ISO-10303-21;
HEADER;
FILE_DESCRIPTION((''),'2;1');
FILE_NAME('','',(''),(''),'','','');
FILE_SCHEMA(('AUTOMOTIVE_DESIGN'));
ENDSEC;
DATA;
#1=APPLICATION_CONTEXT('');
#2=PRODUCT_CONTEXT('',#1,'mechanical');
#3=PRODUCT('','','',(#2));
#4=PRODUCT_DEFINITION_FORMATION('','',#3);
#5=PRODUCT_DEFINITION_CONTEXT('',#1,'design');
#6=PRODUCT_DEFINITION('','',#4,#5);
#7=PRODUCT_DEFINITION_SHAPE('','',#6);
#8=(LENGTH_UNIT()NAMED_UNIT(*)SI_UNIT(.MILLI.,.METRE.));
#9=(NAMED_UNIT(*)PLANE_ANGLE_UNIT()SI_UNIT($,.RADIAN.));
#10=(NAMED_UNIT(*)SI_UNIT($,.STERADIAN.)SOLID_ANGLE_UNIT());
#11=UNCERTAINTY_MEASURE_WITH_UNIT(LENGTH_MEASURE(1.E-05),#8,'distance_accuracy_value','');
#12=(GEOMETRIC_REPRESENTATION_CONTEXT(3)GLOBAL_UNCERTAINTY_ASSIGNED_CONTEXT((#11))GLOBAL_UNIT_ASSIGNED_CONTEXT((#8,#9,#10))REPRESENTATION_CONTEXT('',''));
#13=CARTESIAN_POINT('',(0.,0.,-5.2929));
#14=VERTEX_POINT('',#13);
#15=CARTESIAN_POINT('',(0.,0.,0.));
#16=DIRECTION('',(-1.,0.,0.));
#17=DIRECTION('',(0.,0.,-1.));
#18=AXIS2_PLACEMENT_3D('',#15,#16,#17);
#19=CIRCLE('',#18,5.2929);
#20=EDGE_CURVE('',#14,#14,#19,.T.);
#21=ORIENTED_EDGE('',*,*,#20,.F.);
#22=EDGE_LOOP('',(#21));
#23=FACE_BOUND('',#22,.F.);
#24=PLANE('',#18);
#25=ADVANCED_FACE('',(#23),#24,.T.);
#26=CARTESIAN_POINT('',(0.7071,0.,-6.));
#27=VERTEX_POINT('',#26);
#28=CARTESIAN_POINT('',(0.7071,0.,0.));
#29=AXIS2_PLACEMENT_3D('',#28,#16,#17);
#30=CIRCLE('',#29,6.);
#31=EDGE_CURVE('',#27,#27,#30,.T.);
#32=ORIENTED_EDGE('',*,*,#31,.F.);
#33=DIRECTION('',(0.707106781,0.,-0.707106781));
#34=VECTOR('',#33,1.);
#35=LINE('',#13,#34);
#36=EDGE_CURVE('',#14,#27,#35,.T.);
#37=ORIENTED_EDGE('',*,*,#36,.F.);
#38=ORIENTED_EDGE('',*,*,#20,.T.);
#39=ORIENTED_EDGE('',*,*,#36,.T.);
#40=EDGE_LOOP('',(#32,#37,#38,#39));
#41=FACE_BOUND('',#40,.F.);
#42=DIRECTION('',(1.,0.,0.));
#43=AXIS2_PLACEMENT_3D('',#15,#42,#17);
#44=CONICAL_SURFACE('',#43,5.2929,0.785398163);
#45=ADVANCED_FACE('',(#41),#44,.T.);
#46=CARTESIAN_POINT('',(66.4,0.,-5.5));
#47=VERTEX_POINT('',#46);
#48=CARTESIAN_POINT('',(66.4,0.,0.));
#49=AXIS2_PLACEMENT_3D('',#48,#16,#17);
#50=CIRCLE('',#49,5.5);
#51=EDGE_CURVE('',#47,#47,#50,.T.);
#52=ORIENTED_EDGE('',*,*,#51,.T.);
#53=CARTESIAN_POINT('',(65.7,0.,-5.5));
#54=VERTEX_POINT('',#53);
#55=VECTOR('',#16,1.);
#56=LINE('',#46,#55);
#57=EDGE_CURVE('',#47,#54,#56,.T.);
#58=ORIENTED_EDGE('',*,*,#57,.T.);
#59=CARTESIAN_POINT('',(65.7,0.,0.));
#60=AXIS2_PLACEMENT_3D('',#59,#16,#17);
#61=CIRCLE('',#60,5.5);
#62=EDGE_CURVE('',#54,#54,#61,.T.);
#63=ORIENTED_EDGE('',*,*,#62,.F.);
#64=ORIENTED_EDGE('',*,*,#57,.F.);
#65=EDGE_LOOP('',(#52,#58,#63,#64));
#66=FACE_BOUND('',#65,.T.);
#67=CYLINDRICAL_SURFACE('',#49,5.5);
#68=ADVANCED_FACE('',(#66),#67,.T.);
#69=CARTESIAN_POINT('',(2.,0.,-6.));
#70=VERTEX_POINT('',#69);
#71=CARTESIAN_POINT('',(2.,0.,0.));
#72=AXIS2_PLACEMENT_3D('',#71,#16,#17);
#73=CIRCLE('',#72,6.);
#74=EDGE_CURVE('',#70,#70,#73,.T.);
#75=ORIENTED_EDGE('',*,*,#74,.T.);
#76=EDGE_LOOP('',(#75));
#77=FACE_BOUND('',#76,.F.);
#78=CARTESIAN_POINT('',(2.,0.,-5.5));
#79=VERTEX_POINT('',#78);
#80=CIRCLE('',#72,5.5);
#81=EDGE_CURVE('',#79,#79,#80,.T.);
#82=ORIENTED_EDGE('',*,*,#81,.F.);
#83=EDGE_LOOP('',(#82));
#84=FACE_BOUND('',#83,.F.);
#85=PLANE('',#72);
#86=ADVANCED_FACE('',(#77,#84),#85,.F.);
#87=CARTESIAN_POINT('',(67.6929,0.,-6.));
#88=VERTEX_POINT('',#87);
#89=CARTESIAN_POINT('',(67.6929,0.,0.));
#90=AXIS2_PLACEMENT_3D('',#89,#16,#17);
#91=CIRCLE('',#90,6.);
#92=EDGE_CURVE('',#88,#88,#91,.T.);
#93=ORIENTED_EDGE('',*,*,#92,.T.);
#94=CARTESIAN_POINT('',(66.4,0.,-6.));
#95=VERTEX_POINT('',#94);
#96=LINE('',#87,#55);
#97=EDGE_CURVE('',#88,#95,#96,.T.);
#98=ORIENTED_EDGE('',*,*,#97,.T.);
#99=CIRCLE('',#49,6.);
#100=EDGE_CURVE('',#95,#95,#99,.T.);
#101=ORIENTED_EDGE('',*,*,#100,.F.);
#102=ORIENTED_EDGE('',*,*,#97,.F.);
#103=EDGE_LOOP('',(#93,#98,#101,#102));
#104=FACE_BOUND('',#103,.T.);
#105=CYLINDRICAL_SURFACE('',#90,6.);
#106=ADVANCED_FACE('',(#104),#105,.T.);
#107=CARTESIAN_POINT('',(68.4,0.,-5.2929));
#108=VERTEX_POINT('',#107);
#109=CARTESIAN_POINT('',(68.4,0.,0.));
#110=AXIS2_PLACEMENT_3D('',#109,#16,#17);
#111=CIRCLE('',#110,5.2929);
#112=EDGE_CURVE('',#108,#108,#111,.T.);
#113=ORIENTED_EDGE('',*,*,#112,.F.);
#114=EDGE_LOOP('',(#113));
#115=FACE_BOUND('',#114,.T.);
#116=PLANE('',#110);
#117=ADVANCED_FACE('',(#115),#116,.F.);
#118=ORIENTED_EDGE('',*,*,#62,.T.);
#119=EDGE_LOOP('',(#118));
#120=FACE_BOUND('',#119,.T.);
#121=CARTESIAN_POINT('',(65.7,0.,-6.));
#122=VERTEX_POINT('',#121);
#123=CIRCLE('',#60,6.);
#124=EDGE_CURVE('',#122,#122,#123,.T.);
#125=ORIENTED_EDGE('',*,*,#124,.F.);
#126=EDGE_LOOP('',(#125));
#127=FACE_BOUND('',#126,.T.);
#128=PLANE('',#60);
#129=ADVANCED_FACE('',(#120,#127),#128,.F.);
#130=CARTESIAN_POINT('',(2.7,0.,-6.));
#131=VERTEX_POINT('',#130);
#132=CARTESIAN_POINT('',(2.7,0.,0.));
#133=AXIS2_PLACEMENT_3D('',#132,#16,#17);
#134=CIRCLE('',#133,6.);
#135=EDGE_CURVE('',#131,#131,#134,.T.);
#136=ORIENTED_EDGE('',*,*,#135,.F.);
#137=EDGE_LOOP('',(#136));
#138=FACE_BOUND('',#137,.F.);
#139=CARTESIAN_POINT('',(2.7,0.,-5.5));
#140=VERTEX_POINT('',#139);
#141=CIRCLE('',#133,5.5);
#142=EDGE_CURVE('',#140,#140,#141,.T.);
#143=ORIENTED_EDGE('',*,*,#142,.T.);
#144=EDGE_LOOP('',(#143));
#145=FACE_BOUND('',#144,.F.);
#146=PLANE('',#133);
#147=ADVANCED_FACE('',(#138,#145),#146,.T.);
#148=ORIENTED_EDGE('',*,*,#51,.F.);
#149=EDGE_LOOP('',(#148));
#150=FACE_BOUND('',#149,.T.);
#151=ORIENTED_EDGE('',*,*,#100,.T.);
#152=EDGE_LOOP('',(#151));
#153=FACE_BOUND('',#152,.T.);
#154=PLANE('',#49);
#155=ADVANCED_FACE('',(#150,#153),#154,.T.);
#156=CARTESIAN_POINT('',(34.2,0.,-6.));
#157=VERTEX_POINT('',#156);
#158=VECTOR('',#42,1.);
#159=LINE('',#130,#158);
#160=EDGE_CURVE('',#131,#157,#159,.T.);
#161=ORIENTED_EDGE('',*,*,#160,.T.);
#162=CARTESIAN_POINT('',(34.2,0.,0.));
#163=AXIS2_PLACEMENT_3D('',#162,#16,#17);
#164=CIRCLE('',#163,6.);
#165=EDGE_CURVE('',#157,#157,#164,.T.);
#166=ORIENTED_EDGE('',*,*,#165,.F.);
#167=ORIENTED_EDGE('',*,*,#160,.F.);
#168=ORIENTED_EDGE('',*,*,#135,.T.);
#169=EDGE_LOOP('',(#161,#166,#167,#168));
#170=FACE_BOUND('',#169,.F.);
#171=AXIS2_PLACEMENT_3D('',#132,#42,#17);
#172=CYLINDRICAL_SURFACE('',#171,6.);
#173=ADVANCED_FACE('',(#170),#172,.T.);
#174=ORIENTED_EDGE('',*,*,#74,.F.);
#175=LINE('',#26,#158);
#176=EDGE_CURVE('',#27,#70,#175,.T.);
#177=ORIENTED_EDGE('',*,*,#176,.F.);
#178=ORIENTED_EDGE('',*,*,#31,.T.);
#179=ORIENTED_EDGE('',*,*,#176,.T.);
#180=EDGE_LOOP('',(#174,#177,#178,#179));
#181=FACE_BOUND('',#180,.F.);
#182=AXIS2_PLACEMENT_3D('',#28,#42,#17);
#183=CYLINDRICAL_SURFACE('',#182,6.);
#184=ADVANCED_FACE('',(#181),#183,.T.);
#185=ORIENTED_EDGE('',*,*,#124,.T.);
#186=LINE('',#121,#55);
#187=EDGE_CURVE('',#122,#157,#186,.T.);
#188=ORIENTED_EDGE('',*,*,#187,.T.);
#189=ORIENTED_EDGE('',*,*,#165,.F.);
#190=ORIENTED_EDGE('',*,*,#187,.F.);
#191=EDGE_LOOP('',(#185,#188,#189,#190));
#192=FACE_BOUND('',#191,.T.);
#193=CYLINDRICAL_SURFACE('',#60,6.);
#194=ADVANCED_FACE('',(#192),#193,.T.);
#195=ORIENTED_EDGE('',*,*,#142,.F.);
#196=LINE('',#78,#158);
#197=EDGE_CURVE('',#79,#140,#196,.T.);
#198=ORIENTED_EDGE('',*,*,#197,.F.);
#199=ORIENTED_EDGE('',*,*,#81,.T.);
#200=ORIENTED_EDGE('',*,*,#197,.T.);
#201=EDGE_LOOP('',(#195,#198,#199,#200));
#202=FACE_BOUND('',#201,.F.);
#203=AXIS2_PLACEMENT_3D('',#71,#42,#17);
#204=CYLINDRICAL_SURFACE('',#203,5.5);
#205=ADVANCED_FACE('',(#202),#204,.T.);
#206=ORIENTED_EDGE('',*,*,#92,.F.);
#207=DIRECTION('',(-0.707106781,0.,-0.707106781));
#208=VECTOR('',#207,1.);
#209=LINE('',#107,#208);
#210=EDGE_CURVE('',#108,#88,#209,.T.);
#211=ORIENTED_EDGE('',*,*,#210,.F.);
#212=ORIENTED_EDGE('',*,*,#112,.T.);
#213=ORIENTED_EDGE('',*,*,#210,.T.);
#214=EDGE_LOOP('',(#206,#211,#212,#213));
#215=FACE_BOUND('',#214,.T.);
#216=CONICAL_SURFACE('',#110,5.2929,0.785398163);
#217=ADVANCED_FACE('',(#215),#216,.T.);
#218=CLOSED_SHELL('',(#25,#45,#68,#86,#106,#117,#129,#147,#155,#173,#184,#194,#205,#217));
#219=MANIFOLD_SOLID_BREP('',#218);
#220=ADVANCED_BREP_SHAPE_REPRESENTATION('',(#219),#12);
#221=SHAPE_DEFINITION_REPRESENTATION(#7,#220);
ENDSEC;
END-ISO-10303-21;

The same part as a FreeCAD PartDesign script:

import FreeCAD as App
import Part
import Sketcher

V = App.Vector
Q = App.Units.Quantity

doc = App.newDocument("Part")
params = doc.addObject("Spreadsheet::Sheet", "Params")
for row, (alias, value) in enumerate([
    ("sketch1_length", "1 mm"),
    ("sketch1_width", "0.7 mm"),
    ("sketch1_height", "0.5 mm"),
    ("sketch1_width2", "63 mm"),
    ("revolution_angle", "360 deg"),
], start=1):
    params.set(f"A{row}", alias)
    params.set(f"B{row}", "=" + value)
    params.setAlias(f"B{row}", alias)

body = doc.addObject("PartDesign::Body", "Body")

sketch1 = body.newObject("Sketcher::SketchObject", "Sketch")
sketch1.AttachmentSupport = (doc.getObject("XZ_Plane"), [""])
sketch1.MapMode = "FlatFace"
sketch1.addGeometry(Part.LineSegment(V(0, -5.3, 0), V(0, 0, 0)), False)
sketch1.addGeometry(Part.LineSegment(V(0, 0, 0), V(68.4, 0, 0)), False)
sketch1.addGeometry(Part.LineSegment(V(68.4, 0, 0), V(68.4, -5.3, 0)), False)
sketch1.addGeometry(Part.LineSegment(V(68.4, -5.3, 0), V(67.7, -6, 0)), False)
sketch1.addGeometry(Part.LineSegment(V(67.7, -6, 0), V(66.4, -6, 0)), False)
sketch1.addGeometry(Part.LineSegment(V(66.4, -6, 0), V(66.4, -5.5, 0)), False)
sketch1.addGeometry(Part.LineSegment(V(66.4, -5.5, 0), V(65.7, -5.5, 0)), False)
sketch1.addGeometry(Part.LineSegment(V(65.7, -5.5, 0), V(65.7, -6, 0)), False)
sketch1.addGeometry(Part.LineSegment(V(65.7, -6, 0), V(2.7, -6, 0)), False)
sketch1.addGeometry(Part.LineSegment(V(2.7, -6, 0), V(2.7, -5.5, 0)), False)
sketch1.addGeometry(Part.LineSegment(V(2.7, -5.5, 0), V(2, -5.5, 0)), False)
sketch1.addGeometry(Part.LineSegment(V(2, -5.5, 0), V(2, -6, 0)), False)
sketch1.addGeometry(Part.LineSegment(V(2, -6, 0), V(0.7, -6, 0)), False)
sketch1.addGeometry(Part.LineSegment(V(0.7, -6, 0), V(0, -5.3, 0)), False)
sketch1.addConstraint(Sketcher.Constraint("Coincident", 0, 2, 1, 1))
sketch1.addConstraint(Sketcher.Constraint("Coincident", 1, 2, 2, 1))
sketch1.addConstraint(Sketcher.Constraint("Coincident", 2, 2, 3, 1))
sketch1.addConstraint(Sketcher.Constraint("Coincident", 3, 2, 4, 1))
sketch1.addConstraint(Sketcher.Constraint("Coincident", 4, 2, 5, 1))
sketch1.addConstraint(Sketcher.Constraint("Coincident", 5, 2, 6, 1))
sketch1.addConstraint(Sketcher.Constraint("Coincident", 6, 2, 7, 1))
sketch1.addConstraint(Sketcher.Constraint("Coincident", 7, 2, 8, 1))
sketch1.addConstraint(Sketcher.Constraint("Coincident", 8, 2, 9, 1))
sketch1.addConstraint(Sketcher.Constraint("Coincident", 9, 2, 10, 1))
sketch1.addConstraint(Sketcher.Constraint("Coincident", 10, 2, 11, 1))
sketch1.addConstraint(Sketcher.Constraint("Coincident", 11, 2, 12, 1))
sketch1.addConstraint(Sketcher.Constraint("Coincident", 12, 2, 13, 1))
sketch1.addConstraint(Sketcher.Constraint("Coincident", 13, 2, 0, 1))
sketch1.addConstraint(Sketcher.Constraint("Vertical", 0))
sketch1.addConstraint(Sketcher.Constraint("Horizontal", 1))
sketch1.addConstraint(Sketcher.Constraint("Vertical", 2))
sketch1.addConstraint(Sketcher.Constraint("Horizontal", 4))
sketch1.addConstraint(Sketcher.Constraint("Vertical", 5))
sketch1.addConstraint(Sketcher.Constraint("Horizontal", 6))
sketch1.addConstraint(Sketcher.Constraint("Vertical", 7))
sketch1.addConstraint(Sketcher.Constraint("Horizontal", 8))
sketch1.addConstraint(Sketcher.Constraint("Vertical", 9))
sketch1.addConstraint(Sketcher.Constraint("Horizontal", 10))
sketch1.addConstraint(Sketcher.Constraint("Vertical", 11))
sketch1.addConstraint(Sketcher.Constraint("Horizontal", 12))
sketch1.addConstraint(Sketcher.Constraint("Coincident", 0, 2, -1, 1))
sketch1.addConstraint(Sketcher.Constraint("Perpendicular", 3, 13))
sketch1.addConstraint(Sketcher.Constraint("Horizontal", 4, 2, 7, 2))
sketch1.addConstraint(Sketcher.Constraint("Horizontal", 6, 2, 9, 2))
sketch1.addConstraint(Sketcher.Constraint("Horizontal", 8, 2, 11, 2))
sketch1.addConstraint(Sketcher.Constraint("Horizontal", 2, 2, 13, 2))
sketch1.addConstraint(Sketcher.Constraint("Equal", 6, 10))
sketch1.addConstraint(Sketcher.Constraint("Equal", 4, 12))
sketch1.addConstraint(Sketcher.Constraint("Equal", 3, 13))
sketch1.addConstraint(Sketcher.Constraint("Distance", 3, Q("1 mm")))
sketch1.addConstraint(Sketcher.Constraint("DistanceX", 6, 2, 6, 1, Q("0.7 mm")))
sketch1.addConstraint(Sketcher.Constraint("DistanceY", 5, 1, 5, 2, Q("0.5 mm")))
sketch1.addConstraint(Sketcher.Constraint("DistanceY", 3, 2, -1, 1, Q("6 mm")))
sketch1.addConstraint(Sketcher.Constraint("DistanceX", -1, 1, 10, 2, Q("2 mm")))
sketch1.addConstraint(Sketcher.Constraint("DistanceX", 8, 2, 8, 1, Q("63 mm")))
sketch1.setExpression("Constraints[35]", "Params.sketch1_length")
sketch1.setExpression("Constraints[36]", "Params.sketch1_width")
sketch1.setExpression("Constraints[37]", "Params.sketch1_height")
sketch1.setExpression("Constraints[40]", "Params.sketch1_width2")
revolution = body.newObject("PartDesign::Revolution", "Revolution")
revolution.Profile = sketch1
revolution.ReferenceAxis = (sketch1, ["H_Axis"])
revolution.setExpression("Angle", "Params.revolution_angle")

doc.recompute()
